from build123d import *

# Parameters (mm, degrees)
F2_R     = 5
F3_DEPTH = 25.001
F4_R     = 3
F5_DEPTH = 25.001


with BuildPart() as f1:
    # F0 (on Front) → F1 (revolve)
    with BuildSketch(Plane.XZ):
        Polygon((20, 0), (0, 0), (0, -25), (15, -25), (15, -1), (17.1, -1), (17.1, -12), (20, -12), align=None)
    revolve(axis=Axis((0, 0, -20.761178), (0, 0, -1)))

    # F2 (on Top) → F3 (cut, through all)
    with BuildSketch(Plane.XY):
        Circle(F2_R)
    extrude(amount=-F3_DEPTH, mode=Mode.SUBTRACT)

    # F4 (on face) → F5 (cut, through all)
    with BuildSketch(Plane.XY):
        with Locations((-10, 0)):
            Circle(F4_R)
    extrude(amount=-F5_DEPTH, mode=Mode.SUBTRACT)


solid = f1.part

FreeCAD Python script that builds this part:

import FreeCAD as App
import Part
import Sketcher
Q = App.Units.Quantity

doc = App.newDocument("Part")
body = doc.addObject("PartDesign::Body", "Body")

# Sketch on XZ plane
sketch1 = body.newObject("Sketcher::SketchObject", "Sketch")
sketch1.AttachmentSupport = (doc.getObject("XZ_Plane"), [""])
sketch1.MapMode = "FlatFace"
sketch1.addGeometry([
    Part.LineSegment(App.Vector(20, 0, 0), App.Vector(0, 0, 0)),  # 0
    Part.LineSegment(App.Vector(0, 0, 0), App.Vector(0, -25, 0)),  # 1
    Part.LineSegment(App.Vector(0, -25, 0), App.Vector(15, -25, 0)),  # 2
    Part.LineSegment(App.Vector(15, -25, 0), App.Vector(15, -1, 0)),  # 3
    Part.LineSegment(App.Vector(15, -1, 0), App.Vector(17.1, -1, 0)),  # 4
    Part.LineSegment(App.Vector(17.1, -1, 0), App.Vector(17.1, -12, 0)),  # 5
    Part.LineSegment(App.Vector(17.1, -12, 0), App.Vector(20, -12, 0)),  # 6
    Part.LineSegment(App.Vector(20, -12, 0), App.Vector(20, 0, 0)),  # 7
], False)
sketch1.addConstraint([
    Sketcher.Constraint("Coincident", 0, 2, 1, 1),
    Sketcher.Constraint("Coincident", 1, 2, 2, 1),
    Sketcher.Constraint("Coincident", 2, 2, 3, 1),
    Sketcher.Constraint("Coincident", 3, 2, 4, 1),
    Sketcher.Constraint("Coincident", 4, 2, 5, 1),
    Sketcher.Constraint("Coincident", 5, 2, 6, 1),
    Sketcher.Constraint("Coincident", 6, 2, 7, 1),
    Sketcher.Constraint("Coincident", 7, 2, 0, 1),
    Sketcher.Constraint("Horizontal", 0),
    Sketcher.Constraint("Vertical", 1),
    Sketcher.Constraint("Horizontal", 2),
    Sketcher.Constraint("Vertical", 3),
    Sketcher.Constraint("Horizontal", 4),
    Sketcher.Constraint("Vertical", 5),
    Sketcher.Constraint("Horizontal", 6),
    Sketcher.Constraint("Vertical", 7),
    Sketcher.Constraint("Coincident", 0, 2, -1, 1),
    Sketcher.Constraint("DistanceX", 0, 2, 0, 1, Q("20 mm")),
    Sketcher.Constraint("DistanceX", 2, 1, 2, 2, Q("15 mm")),
    Sketcher.Constraint("DistanceY", 1, 2, 1, 1, Q("25 mm")),
    Sketcher.Constraint("DistanceY", 3, 1, 3, 2, Q("24 mm")),
    Sketcher.Constraint("DistanceY", 5, 2, 5, 1, Q("11 mm")),
    Sketcher.Constraint("DistanceX", 4, 1, 4, 2, Q("2.1 mm")),
])
revolution = body.newObject("PartDesign::Revolution", "Revolution")
revolution.Profile = sketch1
revolution.ReferenceAxis = (sketch1, ["V_Axis"])
revolution.Angle = 360

# Sketch on XY plane
sketch2 = body.newObject("Sketcher::SketchObject", "Sketch001")
sketch2.AttachmentSupport = (doc.getObject("XY_Plane"), [""])
sketch2.MapMode = "FlatFace"
sketch2.addGeometry(Part.Circle(App.Vector(0, 0, 0), App.Vector(0, 0, 1), 5), False)
sketch2.addConstraint([
    Sketcher.Constraint("Coincident", 0, 3, -1, 1),
    Sketcher.Constraint("Diameter", 0, Q("10 mm")),
])
pocket1 = body.newObject("PartDesign::Pocket", "Pocket")
pocket1.Profile = sketch2
pocket1.Type = "ThroughAll"

# Sketch on XY plane
sketch3 = body.newObject("Sketcher::SketchObject", "Sketch002")
sketch3.AttachmentSupport = (doc.getObject("XY_Plane"), [""])
sketch3.MapMode = "FlatFace"
sketch3.addGeometry(Part.Circle(App.Vector(-10, 0, 0), App.Vector(0, 0, 1), 3), False)
sketch3.addConstraint([
    Sketcher.Constraint("PointOnObject", 0, 3, -1),
    Sketcher.Constraint("Diameter", 0, Q("6 mm")),
    Sketcher.Constraint("DistanceX", 0, 3, -1, 1, Q("10 mm")),
])
pocket2 = body.newObject("PartDesign::Pocket", "Pocket001")
pocket2.Profile = sketch3
pocket2.Type = "ThroughAll"

doc.recompute()
